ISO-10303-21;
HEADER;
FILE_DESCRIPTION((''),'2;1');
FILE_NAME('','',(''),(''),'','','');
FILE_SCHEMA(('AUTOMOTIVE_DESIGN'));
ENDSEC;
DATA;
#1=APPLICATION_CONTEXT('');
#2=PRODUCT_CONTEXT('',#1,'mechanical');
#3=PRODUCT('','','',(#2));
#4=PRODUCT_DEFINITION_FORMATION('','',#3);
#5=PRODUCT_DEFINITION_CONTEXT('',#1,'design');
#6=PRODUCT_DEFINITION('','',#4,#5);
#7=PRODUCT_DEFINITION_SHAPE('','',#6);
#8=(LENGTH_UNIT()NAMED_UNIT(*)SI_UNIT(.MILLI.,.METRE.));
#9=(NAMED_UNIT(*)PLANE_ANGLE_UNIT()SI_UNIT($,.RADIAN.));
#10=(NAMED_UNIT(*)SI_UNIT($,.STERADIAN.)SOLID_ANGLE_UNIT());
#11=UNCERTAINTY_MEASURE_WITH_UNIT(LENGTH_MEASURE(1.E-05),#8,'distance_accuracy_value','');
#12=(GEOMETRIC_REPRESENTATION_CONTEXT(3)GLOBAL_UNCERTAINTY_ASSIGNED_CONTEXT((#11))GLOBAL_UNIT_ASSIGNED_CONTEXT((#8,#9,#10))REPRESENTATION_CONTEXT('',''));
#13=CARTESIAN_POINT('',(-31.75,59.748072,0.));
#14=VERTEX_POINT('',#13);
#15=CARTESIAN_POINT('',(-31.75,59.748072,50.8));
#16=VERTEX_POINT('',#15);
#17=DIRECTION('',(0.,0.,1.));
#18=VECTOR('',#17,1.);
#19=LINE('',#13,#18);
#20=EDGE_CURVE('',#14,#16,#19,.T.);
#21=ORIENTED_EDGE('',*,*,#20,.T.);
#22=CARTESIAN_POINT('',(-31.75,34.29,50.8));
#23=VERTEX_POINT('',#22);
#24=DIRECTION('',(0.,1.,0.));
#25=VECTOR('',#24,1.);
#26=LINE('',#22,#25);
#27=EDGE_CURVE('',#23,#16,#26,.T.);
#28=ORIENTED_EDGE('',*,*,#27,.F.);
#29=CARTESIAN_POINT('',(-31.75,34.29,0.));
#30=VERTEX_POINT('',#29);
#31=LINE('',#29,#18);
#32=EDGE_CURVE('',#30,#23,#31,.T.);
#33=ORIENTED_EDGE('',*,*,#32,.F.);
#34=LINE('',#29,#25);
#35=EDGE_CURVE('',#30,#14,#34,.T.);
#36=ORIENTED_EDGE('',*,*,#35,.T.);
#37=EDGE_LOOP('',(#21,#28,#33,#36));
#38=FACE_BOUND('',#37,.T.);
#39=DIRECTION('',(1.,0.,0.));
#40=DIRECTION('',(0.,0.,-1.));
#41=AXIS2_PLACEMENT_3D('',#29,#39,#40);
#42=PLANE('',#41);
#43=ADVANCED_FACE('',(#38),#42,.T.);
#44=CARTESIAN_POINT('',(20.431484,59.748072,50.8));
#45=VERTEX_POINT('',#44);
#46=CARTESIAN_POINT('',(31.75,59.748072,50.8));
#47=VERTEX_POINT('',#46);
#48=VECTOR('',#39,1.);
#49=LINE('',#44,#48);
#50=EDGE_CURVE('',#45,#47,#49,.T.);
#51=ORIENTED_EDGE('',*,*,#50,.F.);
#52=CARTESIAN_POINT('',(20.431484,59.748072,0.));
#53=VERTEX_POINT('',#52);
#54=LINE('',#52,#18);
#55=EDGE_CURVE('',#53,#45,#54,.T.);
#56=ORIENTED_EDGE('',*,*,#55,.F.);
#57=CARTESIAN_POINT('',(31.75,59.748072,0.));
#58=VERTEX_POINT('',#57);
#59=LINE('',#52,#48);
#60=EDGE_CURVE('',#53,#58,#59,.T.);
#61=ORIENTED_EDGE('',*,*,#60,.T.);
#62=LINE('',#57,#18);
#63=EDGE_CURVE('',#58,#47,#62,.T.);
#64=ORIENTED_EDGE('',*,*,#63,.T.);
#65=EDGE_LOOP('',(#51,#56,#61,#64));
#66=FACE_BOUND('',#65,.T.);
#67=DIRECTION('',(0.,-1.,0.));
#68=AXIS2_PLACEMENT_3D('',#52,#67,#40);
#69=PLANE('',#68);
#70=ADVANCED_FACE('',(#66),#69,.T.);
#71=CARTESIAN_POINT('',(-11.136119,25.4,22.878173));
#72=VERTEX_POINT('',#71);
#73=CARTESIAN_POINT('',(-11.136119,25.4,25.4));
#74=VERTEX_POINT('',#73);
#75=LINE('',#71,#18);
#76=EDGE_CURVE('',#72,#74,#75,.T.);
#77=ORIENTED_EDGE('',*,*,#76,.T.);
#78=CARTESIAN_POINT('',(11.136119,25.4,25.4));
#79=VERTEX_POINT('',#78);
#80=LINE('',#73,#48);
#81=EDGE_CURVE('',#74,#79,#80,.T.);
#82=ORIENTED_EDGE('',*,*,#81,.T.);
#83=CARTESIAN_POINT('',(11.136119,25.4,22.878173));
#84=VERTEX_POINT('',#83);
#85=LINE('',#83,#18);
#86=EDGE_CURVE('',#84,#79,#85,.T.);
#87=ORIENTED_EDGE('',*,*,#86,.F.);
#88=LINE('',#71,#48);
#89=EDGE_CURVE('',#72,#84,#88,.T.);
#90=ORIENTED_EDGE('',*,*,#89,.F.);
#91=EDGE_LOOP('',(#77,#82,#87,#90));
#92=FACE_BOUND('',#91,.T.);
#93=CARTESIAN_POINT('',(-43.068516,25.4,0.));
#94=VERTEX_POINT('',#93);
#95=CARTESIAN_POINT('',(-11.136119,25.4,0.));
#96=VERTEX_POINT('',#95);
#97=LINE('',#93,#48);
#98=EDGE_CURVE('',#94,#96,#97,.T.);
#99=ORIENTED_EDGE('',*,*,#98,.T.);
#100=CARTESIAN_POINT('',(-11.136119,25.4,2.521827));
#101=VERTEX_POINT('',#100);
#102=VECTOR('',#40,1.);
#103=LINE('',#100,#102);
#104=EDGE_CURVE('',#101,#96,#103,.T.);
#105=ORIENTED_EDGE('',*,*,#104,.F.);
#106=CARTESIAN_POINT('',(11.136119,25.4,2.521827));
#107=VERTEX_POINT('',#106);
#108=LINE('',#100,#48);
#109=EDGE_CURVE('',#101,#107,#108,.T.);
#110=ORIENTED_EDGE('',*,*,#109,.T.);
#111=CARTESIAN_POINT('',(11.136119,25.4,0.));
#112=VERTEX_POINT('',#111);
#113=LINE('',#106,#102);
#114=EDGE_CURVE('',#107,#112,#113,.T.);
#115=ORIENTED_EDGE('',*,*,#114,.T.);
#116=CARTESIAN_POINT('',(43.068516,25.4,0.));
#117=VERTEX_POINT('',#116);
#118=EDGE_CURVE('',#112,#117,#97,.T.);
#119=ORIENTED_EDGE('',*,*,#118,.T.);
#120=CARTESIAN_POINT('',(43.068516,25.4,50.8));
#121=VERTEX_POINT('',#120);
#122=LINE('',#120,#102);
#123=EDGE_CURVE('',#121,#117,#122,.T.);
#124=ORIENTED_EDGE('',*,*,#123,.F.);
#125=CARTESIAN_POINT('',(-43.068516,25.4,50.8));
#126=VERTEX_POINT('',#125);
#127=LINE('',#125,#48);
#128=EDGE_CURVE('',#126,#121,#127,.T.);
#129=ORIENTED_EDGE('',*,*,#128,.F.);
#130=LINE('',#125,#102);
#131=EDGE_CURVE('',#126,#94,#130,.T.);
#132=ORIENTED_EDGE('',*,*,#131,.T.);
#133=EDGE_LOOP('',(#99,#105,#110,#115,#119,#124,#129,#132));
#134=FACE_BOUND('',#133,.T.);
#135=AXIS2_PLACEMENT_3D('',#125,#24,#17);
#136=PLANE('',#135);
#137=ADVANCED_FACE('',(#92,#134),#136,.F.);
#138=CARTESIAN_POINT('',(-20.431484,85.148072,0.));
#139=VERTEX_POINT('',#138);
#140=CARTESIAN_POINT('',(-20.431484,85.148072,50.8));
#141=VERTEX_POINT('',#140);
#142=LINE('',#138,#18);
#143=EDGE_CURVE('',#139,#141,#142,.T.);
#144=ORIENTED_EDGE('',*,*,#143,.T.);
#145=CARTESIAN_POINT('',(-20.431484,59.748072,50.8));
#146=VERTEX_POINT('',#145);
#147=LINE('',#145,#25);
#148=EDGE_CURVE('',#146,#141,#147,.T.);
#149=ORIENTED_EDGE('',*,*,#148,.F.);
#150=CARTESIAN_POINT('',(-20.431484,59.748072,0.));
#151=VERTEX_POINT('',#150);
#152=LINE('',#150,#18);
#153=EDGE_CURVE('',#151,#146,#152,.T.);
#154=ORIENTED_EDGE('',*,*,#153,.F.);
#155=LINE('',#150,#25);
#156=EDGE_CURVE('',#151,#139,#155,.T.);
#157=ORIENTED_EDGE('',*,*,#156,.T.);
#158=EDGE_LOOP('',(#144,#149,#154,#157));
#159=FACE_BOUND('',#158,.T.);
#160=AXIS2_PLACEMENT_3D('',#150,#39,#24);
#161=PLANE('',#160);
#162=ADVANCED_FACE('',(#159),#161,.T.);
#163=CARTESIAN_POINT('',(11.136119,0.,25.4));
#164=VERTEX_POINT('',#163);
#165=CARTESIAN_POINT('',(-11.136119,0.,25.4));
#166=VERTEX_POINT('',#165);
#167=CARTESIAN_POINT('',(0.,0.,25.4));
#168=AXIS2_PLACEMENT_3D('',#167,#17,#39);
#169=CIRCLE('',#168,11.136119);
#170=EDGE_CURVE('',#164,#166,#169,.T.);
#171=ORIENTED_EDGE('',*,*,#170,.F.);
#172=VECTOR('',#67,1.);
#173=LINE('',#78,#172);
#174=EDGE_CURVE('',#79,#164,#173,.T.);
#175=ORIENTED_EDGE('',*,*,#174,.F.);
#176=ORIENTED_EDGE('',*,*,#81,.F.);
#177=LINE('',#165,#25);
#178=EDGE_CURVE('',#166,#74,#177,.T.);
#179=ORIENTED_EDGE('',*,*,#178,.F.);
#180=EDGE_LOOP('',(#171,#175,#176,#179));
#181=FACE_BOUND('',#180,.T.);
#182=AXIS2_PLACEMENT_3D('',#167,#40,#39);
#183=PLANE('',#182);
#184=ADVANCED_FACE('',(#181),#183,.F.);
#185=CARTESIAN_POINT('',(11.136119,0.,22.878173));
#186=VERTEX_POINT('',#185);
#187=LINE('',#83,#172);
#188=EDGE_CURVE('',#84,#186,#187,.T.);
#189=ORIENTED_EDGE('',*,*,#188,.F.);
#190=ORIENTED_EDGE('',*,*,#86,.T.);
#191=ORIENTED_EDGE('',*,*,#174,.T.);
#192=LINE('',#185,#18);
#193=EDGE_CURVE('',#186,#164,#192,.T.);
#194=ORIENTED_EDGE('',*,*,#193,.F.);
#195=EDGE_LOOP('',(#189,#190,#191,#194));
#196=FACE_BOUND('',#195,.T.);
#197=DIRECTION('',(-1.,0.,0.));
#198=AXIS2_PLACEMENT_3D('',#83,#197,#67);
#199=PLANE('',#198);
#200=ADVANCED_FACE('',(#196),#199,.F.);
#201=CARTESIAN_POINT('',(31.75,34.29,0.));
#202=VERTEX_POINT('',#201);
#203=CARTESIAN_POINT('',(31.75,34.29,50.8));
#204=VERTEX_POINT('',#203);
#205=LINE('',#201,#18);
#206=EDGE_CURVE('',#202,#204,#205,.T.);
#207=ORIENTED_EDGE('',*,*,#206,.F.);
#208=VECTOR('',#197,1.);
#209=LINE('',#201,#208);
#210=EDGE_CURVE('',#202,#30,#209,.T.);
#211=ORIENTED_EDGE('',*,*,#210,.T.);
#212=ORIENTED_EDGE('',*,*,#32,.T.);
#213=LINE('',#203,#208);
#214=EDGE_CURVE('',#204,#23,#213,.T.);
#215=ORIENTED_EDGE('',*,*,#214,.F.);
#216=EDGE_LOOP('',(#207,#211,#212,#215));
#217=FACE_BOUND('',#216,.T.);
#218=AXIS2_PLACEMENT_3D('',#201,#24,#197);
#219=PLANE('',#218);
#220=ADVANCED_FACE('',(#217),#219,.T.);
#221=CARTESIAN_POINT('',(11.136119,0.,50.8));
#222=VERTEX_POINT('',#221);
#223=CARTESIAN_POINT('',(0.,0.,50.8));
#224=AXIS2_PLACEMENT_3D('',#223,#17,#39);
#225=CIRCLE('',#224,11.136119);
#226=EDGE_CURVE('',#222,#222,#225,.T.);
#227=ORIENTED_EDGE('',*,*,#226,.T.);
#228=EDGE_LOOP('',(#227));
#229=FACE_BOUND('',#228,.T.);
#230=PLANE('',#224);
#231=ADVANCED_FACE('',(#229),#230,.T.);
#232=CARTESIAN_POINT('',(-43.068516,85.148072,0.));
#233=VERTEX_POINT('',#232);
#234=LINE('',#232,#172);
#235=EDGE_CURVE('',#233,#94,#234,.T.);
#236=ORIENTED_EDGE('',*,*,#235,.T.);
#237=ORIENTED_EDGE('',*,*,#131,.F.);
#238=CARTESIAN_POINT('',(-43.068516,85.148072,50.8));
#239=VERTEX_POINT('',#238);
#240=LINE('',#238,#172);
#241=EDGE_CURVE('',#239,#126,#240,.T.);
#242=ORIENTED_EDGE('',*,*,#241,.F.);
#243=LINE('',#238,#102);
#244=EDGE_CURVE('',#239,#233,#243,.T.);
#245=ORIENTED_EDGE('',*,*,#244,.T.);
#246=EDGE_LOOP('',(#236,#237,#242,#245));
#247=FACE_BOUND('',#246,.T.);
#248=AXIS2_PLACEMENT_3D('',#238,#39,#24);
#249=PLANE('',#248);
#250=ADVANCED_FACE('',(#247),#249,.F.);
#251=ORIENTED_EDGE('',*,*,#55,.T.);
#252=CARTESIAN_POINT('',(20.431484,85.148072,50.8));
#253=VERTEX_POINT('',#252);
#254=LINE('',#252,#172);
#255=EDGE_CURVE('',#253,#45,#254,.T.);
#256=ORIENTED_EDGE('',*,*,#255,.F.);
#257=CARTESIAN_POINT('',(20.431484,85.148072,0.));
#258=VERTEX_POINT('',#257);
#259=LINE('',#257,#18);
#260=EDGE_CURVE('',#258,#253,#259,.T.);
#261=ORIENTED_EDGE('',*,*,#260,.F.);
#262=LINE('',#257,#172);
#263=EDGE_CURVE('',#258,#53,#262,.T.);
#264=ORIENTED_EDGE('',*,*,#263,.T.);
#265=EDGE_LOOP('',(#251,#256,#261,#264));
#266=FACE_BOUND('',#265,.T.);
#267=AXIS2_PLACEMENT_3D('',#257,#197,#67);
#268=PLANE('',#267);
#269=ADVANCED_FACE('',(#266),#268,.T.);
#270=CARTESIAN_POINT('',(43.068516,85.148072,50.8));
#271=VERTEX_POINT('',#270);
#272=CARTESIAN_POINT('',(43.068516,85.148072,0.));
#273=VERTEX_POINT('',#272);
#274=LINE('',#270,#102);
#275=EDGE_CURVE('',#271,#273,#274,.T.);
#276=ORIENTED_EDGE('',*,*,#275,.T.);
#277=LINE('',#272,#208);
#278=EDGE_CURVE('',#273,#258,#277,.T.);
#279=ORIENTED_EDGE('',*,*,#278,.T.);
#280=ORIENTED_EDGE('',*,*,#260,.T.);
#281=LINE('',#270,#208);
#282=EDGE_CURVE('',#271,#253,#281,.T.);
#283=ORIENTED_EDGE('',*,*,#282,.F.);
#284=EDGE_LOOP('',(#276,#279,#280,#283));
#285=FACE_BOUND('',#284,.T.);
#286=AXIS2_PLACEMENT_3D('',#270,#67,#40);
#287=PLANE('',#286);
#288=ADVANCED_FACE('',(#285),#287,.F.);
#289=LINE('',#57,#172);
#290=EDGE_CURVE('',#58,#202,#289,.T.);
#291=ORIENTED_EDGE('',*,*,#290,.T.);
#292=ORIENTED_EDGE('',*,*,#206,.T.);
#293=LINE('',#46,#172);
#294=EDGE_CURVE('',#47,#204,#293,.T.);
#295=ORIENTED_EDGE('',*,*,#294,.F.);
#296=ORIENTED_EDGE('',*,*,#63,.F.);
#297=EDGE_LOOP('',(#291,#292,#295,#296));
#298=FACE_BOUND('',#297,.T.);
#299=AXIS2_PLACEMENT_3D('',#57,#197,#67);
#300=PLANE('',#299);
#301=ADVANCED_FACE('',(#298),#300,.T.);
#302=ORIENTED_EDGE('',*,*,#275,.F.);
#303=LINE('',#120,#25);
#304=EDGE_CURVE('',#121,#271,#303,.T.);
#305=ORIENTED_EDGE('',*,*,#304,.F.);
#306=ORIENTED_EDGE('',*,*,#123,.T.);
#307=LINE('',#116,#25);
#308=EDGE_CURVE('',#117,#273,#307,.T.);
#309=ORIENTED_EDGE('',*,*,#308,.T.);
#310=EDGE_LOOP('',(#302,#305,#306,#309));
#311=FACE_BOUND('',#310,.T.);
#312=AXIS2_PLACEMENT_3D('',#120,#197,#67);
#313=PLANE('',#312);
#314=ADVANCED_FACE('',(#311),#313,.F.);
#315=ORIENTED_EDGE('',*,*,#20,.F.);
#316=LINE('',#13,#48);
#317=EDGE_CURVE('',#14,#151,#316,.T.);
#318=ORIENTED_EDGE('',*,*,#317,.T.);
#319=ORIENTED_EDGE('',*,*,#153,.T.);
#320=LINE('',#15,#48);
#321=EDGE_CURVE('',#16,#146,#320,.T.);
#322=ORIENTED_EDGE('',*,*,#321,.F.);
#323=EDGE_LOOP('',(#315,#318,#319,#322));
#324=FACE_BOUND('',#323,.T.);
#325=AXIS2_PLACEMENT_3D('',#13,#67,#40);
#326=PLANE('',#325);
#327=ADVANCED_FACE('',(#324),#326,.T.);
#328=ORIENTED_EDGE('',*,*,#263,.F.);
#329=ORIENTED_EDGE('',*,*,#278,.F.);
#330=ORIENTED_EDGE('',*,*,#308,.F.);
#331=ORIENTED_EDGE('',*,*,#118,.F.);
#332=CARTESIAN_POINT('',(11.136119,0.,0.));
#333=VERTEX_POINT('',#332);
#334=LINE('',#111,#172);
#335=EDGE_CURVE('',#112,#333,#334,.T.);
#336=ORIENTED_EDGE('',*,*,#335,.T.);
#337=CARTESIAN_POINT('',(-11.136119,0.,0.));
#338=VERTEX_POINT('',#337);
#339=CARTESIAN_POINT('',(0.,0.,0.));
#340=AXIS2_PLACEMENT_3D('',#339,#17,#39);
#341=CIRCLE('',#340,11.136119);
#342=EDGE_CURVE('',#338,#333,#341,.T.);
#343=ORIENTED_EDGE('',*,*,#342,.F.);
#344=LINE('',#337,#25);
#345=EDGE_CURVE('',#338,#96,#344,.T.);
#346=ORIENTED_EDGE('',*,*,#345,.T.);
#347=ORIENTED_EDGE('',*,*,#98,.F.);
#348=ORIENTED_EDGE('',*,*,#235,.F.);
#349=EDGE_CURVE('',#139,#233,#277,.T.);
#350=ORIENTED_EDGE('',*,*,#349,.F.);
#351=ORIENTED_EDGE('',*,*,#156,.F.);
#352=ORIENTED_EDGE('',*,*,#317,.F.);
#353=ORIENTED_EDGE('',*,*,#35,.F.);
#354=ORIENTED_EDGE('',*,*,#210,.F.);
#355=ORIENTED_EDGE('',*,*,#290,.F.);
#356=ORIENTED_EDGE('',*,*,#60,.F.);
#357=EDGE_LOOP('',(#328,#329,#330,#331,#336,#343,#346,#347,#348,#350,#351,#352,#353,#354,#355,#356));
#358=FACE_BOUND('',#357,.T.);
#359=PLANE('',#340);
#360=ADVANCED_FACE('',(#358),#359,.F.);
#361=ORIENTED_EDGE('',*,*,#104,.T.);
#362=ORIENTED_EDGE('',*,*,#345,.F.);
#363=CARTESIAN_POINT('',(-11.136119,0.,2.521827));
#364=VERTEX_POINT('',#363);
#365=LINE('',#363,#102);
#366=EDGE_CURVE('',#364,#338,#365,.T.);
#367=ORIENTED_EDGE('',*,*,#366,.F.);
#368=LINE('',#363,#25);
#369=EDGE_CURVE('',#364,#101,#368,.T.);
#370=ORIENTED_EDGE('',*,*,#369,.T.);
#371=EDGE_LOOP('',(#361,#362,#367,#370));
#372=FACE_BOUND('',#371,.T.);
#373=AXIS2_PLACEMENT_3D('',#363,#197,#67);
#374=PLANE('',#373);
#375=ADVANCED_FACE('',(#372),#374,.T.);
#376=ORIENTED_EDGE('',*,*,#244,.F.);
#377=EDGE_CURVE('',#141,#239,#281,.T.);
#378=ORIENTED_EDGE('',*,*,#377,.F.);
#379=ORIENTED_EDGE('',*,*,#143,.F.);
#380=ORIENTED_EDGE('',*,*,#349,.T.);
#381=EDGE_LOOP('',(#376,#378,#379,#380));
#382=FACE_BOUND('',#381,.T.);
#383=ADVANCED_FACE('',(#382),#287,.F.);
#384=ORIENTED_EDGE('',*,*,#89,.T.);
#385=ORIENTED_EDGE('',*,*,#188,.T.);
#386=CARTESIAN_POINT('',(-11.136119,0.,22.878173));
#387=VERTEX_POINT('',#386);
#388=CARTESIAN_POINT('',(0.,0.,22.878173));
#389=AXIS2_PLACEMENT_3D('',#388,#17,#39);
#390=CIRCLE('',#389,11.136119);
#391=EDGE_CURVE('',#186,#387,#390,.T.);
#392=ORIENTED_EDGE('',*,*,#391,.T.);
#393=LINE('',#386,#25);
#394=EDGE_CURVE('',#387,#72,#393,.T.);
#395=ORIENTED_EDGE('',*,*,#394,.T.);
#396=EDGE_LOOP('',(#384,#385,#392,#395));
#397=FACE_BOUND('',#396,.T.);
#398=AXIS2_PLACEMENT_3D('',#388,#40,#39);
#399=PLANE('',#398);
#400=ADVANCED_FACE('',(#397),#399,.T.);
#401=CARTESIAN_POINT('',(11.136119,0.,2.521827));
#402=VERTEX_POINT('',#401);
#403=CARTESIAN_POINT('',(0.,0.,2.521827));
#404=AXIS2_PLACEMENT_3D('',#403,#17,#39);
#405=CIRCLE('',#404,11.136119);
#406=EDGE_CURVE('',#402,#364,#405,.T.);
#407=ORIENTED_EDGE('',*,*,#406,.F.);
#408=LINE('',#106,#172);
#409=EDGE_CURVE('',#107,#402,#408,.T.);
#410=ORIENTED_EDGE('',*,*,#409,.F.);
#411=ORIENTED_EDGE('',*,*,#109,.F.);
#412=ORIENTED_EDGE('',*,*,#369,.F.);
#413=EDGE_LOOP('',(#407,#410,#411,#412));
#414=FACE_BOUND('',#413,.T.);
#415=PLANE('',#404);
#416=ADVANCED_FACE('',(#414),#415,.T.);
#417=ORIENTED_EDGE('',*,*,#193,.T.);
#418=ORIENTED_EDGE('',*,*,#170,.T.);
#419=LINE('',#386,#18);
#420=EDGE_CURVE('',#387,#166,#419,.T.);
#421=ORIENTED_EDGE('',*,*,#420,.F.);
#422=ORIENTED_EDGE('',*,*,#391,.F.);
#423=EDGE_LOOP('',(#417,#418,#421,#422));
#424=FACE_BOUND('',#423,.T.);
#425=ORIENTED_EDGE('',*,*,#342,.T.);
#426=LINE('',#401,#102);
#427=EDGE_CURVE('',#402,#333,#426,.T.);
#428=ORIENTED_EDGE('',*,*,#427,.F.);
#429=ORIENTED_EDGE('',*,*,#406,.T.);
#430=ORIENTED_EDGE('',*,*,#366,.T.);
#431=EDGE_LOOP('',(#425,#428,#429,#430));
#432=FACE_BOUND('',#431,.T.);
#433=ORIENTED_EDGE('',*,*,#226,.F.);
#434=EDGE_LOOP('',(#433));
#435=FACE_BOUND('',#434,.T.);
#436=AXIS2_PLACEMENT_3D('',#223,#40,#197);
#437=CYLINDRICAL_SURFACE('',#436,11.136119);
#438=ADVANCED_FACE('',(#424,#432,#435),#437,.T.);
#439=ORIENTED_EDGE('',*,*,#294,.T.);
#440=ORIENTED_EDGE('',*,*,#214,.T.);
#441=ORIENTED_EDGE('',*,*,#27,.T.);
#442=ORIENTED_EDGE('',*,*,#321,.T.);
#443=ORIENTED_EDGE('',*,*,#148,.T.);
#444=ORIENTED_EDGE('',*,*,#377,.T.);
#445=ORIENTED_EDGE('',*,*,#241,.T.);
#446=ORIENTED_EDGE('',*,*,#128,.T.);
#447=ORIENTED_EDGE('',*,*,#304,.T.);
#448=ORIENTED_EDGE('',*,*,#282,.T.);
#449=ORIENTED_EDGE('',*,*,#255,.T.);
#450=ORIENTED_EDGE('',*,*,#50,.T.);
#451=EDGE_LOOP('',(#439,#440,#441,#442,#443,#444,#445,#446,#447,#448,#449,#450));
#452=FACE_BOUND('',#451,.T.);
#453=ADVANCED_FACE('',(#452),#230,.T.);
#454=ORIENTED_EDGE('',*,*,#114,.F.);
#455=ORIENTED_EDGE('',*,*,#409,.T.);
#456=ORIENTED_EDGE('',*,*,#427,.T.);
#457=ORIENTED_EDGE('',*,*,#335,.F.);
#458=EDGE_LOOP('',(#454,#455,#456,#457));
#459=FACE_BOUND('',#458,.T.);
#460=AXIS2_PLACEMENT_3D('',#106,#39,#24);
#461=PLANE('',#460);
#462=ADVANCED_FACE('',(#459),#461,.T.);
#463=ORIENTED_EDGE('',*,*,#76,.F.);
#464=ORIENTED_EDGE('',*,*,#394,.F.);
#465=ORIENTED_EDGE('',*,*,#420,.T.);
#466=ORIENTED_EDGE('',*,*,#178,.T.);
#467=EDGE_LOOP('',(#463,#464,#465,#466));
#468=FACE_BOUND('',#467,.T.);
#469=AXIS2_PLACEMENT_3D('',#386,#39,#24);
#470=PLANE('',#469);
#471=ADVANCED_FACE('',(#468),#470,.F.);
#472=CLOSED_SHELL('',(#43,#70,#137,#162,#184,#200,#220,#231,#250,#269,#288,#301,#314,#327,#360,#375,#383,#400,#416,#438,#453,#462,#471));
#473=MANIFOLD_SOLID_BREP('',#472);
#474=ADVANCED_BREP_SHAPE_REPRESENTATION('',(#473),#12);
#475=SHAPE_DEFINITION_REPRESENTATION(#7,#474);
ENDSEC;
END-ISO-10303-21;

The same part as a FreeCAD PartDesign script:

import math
import FreeCAD as App
import Part
import Sketcher

V = App.Vector
Q = App.Units.Quantity


def add_polygon(sketch, points):
    """Adds a closed chain of lines whose ends are joined by coincident constraints."""
    first, n = sketch.GeometryCount, len(points)
    for a, b in zip(points, points[1:] + points[:1]):
        sketch.addGeometry(Part.LineSegment(App.Vector(*a, 0), App.Vector(*b, 0)), False)
    for i in range(n):
        sketch.addConstraint(Sketcher.Constraint("Coincident", first + i, 2, first + (i + 1) % n, 1))

doc = App.newDocument("Part")
body = doc.addObject("PartDesign::Body", "Body")

sketch1 = body.newObject("Sketcher::SketchObject", "Sketch")
sketch1.AttachmentSupport = (doc.getObject("XY_Plane"), [""])
sketch1.MapMode = "FlatFace"
sketch1.addGeometry([
    Part.LineSegment(V(-11.136119, 25.4, 0), V(-11.136119, 0, 0)),
    Part.ArcOfCircle(Part.Circle(V(0, 0, 0), V(0, 0, 1), 11.136119), math.radians(0), math.radians(180)),
    Part.LineSegment(V(11.136119, 0, 0), V(11.136119, 25.4, 0)),
    Part.LineSegment(V(11.136119, 25.4, 0), V(-11.136119, 25.4, 0)),
], False)
sketch1.addConstraint([
    Sketcher.Constraint("Tangent", 0, 2, 1, 2),
    Sketcher.Constraint("Tangent", 1, 1, 2, 1),
    Sketcher.Constraint("Coincident", 2, 2, 3, 1),
    Sketcher.Constraint("Coincident", 3, 2, 0, 1),
    Sketcher.Constraint("Vertical", 0),
    Sketcher.Constraint("Vertical", 2),
    Sketcher.Constraint("Horizontal", 3),
    Sketcher.Constraint("Coincident", 1, 3, -1, 1),
    Sketcher.Constraint("DistanceY", 0, 2, 0, 1, Q("1 in")),
    Sketcher.Constraint("Radius", 1, Q("11.136119 mm")),
])
pad1 = body.newObject("PartDesign::Pad", "Pad")
pad1.Profile = sketch1
pad1.Length = 2.521827

sketch2 = body.newObject("Sketcher::SketchObject", "Sketch001")
sketch2.AttachmentSupport = (doc.getObject("XY_Plane"), [""])
sketch2.MapMode = "FlatFace"
sketch2.addGeometry(Part.Circle(V(0, 0, 0), V(0, 0, 1), 11.136119), False)
sketch2.addConstraint([
    Sketcher.Constraint("Coincident", 0, 3, -1, 1),
    Sketcher.Constraint("Diameter", 0, Q("22.272237 mm")),
])
pad2 = body.newObject("PartDesign::Pad", "Pad001")
pad2.Profile = sketch2
pad2.Length = Q("2 in")

sketch3 = body.newObject("Sketcher::SketchObject", "Sketch002")
sketch3.AttachmentSupport = (doc.getObject("XY_Plane"), [""])
sketch3.MapMode = "FlatFace"
add_polygon(sketch3, [(-43.068516, 85.148072), (-43.068516, 25.4), (43.068516, 25.4), (43.068516, 85.148072)])
sketch3.addConstraint([
    Sketcher.Constraint("Vertical", 0),
    Sketcher.Constraint("Horizontal", 1),
    Sketcher.Constraint("Vertical", 2),
    Sketcher.Constraint("Horizontal", 3),
    Sketcher.Constraint("DistanceY", -1, 1, 0, 2, Q("1 in")),
    Sketcher.Constraint("DistanceX", 1, 1, 1, 2, Q("86.137031 mm")),
    Sketcher.Constraint("DistanceY", 0, 2, 0, 1, Q("59.748072 mm")),
    Sketcher.Constraint("DistanceX", 0, 2, -1, 1, Q("43.068516 mm")),
])
pad3 = body.newObject("PartDesign::Pad", "Pad002")
pad3.Profile = sketch3
pad3.Length = Q("2 in")

sketch4 = body.newObject("Sketcher::SketchObject", "Sketch003")
sketch4.AttachmentSupport = (doc.getObject("XY_Plane"), [""])
sketch4.MapMode = "FlatFace"
sketch4.AttachmentOffset = App.Placement(V(0, 0, 2 * 25.4), App.Rotation())
add_polygon(sketch4, [(20.431484, 59.748072), (20.431484, 85.148072), (-20.431484, 85.148072), (-20.431484, 59.748072), (-31.75, 59.748072), (-31.75, 34.29), (31.75, 34.29), (31.75, 59.748072)])
sketch4.addConstraint([
    Sketcher.Constraint("Vertical", 0),
    Sketcher.Constraint("Horizontal", 1),
    Sketcher.Constraint("Vertical", 2),
    Sketcher.Constraint("Horizontal", 3),
    Sketcher.Constraint("Vertical", 4),
    Sketcher.Constraint("Horizontal", 5),
    Sketcher.Constraint("Vertical", 6),
    Sketcher.Constraint("Horizontal", 7),
    Sketcher.Constraint("Symmetric", 3, 2, 6, 2, -2),
    Sketcher.Constraint("Equal", 3, 7),
    Sketcher.Constraint("DistanceY", 0, 1, 0, 2, Q("1 in")),
    Sketcher.Constraint("DistanceX", 5, 1, 5, 2, Q("2.5 in")),
    Sketcher.Constraint("DistanceY", -1, 1, 4, 2, Q("1.35 in")),
    Sketcher.Constraint("DistanceX", 1, 2, 1, 1, Q("40.862969 mm")),
    Sketcher.Constraint("DistanceY", 4, 2, 4, 1, Q("25.458072 mm")),
])
pocket1 = body.newObject("PartDesign::Pocket", "Pocket")
pocket1.Profile = sketch4
pocket1.Type = "ThroughAll"
doc.recompute()

datumplane = body.newObject("PartDesign::Plane", "DatumPlane")
datumplane.AttachmentSupport = (doc.getObject("XY_Plane"), [""])
datumplane.MapMode = "FlatFace"
datumplane.AttachmentOffset = App.Placement(V(0, 0, 0.5 * 25.4), App.Rotation())
mirrored = body.newObject("PartDesign::Mirrored", "Mirrored")
mirrored.Originals = [pad1]
mirrored.MirrorPlane = (datumplane, [""])
body.Tip = mirrored

doc.recompute()
